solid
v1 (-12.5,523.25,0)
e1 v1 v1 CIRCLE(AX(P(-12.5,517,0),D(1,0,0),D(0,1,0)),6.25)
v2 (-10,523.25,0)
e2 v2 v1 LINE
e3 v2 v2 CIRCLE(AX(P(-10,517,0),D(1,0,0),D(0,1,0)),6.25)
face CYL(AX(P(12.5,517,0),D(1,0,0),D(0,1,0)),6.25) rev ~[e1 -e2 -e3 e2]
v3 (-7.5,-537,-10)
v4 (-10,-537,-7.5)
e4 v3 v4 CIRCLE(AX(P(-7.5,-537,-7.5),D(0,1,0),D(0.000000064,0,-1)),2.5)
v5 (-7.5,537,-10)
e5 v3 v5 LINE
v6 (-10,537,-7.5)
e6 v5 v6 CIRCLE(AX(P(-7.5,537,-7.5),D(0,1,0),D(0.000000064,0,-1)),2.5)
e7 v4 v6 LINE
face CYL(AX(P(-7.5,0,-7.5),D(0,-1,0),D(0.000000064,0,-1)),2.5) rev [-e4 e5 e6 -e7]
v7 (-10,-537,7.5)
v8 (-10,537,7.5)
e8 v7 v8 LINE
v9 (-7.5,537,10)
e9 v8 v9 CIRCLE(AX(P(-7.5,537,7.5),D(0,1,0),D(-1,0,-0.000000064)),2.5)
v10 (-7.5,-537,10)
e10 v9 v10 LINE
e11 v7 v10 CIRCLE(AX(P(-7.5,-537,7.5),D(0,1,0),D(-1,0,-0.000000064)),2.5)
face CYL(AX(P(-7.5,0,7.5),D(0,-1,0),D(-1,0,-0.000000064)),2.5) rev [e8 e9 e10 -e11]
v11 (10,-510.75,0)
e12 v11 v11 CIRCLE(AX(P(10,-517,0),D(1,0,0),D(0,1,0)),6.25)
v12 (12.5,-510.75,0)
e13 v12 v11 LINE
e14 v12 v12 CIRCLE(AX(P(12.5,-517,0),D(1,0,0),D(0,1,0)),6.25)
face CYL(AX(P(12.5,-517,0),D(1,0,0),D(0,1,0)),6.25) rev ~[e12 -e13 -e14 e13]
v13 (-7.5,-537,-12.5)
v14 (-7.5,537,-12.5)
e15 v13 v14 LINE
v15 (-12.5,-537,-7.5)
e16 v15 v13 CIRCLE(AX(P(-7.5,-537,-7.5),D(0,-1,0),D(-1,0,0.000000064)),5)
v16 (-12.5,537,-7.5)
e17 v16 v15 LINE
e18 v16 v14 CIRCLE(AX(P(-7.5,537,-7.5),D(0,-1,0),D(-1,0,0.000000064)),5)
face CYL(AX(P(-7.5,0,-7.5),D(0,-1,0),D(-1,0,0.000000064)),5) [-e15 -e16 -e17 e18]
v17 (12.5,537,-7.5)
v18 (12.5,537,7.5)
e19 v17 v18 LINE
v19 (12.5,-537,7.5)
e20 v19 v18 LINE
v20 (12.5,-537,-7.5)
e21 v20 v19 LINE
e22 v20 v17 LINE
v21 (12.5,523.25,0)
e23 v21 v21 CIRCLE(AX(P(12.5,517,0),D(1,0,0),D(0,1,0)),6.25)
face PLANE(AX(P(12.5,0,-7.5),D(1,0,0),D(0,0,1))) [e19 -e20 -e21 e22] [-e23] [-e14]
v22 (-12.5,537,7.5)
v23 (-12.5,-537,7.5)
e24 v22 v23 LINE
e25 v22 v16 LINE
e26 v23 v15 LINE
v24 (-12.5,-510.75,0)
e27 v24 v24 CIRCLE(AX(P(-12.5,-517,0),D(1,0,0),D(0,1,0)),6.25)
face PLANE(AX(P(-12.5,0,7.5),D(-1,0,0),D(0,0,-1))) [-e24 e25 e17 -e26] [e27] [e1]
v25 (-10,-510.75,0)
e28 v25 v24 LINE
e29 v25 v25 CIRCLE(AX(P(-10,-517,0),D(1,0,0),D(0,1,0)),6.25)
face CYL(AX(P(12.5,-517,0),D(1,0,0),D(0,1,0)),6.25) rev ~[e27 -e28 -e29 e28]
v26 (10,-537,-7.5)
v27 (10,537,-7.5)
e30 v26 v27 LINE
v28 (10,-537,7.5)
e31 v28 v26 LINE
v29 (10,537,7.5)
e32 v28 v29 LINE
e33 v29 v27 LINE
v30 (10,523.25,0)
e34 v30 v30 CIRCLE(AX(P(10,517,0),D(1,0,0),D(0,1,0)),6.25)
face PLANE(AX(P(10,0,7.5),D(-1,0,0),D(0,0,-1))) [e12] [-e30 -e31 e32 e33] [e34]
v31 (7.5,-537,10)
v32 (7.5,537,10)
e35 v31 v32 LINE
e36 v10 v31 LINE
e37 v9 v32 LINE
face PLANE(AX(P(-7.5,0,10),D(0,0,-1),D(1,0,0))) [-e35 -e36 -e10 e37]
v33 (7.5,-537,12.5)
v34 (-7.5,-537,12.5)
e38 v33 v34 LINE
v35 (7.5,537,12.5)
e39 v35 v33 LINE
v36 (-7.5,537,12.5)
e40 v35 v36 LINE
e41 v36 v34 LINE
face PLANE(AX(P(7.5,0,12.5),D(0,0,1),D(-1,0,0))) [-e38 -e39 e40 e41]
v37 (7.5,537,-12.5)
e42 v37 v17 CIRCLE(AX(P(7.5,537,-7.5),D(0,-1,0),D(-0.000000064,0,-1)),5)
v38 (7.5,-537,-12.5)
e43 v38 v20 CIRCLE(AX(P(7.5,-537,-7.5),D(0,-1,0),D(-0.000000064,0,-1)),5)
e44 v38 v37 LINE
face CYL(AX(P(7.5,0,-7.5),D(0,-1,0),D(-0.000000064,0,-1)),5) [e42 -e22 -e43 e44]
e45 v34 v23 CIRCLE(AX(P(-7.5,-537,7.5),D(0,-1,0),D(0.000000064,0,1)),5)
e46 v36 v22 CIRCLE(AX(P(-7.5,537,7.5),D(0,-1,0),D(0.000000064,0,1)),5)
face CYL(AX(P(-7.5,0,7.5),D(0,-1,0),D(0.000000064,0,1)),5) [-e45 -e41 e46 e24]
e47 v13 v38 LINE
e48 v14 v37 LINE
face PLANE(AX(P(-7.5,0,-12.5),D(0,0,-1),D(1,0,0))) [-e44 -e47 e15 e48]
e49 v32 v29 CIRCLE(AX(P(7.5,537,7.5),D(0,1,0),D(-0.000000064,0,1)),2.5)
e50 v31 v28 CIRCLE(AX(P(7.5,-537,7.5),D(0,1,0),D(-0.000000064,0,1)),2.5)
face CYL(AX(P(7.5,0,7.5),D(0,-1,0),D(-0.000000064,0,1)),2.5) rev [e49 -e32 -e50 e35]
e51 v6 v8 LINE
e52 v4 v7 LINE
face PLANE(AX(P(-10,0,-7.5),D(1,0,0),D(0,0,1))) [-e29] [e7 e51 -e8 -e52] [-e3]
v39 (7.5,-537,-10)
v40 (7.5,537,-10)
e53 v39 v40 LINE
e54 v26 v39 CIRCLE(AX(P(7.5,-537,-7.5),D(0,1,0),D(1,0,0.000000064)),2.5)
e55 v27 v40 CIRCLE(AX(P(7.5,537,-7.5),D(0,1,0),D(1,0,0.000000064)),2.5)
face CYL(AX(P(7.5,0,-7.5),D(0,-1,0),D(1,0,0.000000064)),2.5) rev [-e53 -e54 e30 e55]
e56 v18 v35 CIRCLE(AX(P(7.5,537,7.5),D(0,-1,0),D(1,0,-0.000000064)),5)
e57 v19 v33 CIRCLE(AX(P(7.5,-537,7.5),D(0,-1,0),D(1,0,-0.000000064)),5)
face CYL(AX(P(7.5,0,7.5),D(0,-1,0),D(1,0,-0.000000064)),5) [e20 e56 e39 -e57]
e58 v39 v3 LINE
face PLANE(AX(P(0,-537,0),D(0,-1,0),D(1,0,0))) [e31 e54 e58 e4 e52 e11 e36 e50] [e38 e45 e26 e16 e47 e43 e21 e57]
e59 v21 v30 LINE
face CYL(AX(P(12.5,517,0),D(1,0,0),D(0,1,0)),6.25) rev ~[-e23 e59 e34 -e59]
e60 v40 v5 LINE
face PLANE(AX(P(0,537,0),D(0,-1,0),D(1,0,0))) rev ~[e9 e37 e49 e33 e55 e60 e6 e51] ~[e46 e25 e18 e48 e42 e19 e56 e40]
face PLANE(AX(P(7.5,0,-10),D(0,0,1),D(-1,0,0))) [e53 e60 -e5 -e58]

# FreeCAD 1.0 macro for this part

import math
import FreeCAD as App
import Part
import Sketcher
from FreeCAD import Vector

doc = App.newDocument("Part")
body = doc.addObject("PartDesign::Body", "Body")

# Sketch on XZ plane
sketch1 = body.newObject("Sketcher::SketchObject", "Sketch")
sketch1.AttachmentSupport = (doc.getObject("XZ_Plane"), [""])
sketch1.MapMode = "FlatFace"
sketch1.addGeometry(Part.ArcOfCircle(Part.Circle(Vector(7.5, 7.5, 0), Vector(0, 0, 1), 5), math.radians(0), math.radians(90)), False)
sketch1.addGeometry(Part.LineSegment(Vector(7.5, 12.5, 0), Vector(-7.5, 12.5, 0)), False)
sketch1.addGeometry(Part.ArcOfCircle(Part.Circle(Vector(-7.5, 7.5, 0), Vector(0, 0, 1), 5), math.radians(90), math.radians(180)), False)
sketch1.addGeometry(Part.LineSegment(Vector(-12.5, 7.5, 0), Vector(-12.5, -7.5, 0)), False)
sketch1.addGeometry(Part.ArcOfCircle(Part.Circle(Vector(-7.5, -7.5, 0), Vector(0, 0, 1), 5), math.radians(180), math.radians(270)), False)
sketch1.addGeometry(Part.LineSegment(Vector(-7.5, -12.5, 0), Vector(7.5, -12.5, 0)), False)
sketch1.addGeometry(Part.ArcOfCircle(Part.Circle(Vector(7.5, -7.5, 0), Vector(0, 0, 1), 5), math.radians(-90), math.radians(0)), False)
sketch1.addGeometry(Part.LineSegment(Vector(12.5, -7.5, 0), Vector(12.5, 7.5, 0)), False)
sketch1.addGeometry(Part.ArcOfCircle(Part.Circle(Vector(-7.5, 7.5, 0), Vector(0, 0, 1), 2.5), math.radians(90), math.radians(180)), False)
sketch1.addGeometry(Part.LineSegment(Vector(-7.5, 10, 0), Vector(7.5, 10, 0)), False)
sketch1.addGeometry(Part.ArcOfCircle(Part.Circle(Vector(7.5, 7.5, 0), Vector(0, 0, 1), 2.5), math.radians(0), math.radians(90)), False)
sketch1.addGeometry(Part.LineSegment(Vector(10, 7.5, 0), Vector(10, -7.5, 0)), False)
sketch1.addGeometry(Part.ArcOfCircle(Part.Circle(Vector(7.5, -7.5, 0), Vector(0, 0, 1), 2.5), math.radians(-90), math.radians(0)), False)
sketch1.addGeometry(Part.LineSegment(Vector(7.5, -10, 0), Vector(-7.5, -10, 0)), False)
sketch1.addGeometry(Part.ArcOfCircle(Part.Circle(Vector(-7.5, -7.5, 0), Vector(0, 0, 1), 2.5), math.radians(180), math.radians(270)), False)
sketch1.addGeometry(Part.LineSegment(Vector(-10, -7.5, 0), Vector(-10, 7.5, 0)), False)
sketch1.addConstraint(Sketcher.Constraint("Tangent", 0, 2, 1, 1))
sketch1.addConstraint(Sketcher.Constraint("Tangent", 1, 2, 2, 1))
sketch1.addConstraint(Sketcher.Constraint("Tangent", 2, 2, 3, 1))
sketch1.addConstraint(Sketcher.Constraint("Tangent", 3, 2, 4, 1))
sketch1.addConstraint(Sketcher.Constraint("Tangent", 4, 2, 5, 1))
sketch1.addConstraint(Sketcher.Constraint("Tangent", 5, 2, 6, 1))
sketch1.addConstraint(Sketcher.Constraint("Tangent", 6, 2, 7, 1))
sketch1.addConstraint(Sketcher.Constraint("Tangent", 7, 2, 0, 1))
sketch1.addConstraint(Sketcher.Constraint("Tangent", 8, 1, 9, 1))
sketch1.addConstraint(Sketcher.Constraint("Tangent", 9, 2, 10, 2))
sketch1.addConstraint(Sketcher.Constraint("Tangent", 10, 1, 11, 1))
sketch1.addConstraint(Sketcher.Constraint("Tangent", 11, 2, 12, 2))
sketch1.addConstraint(Sketcher.Constraint("Tangent", 12, 1, 13, 1))
sketch1.addConstraint(Sketcher.Constraint("Tangent", 13, 2, 14, 2))
sketch1.addConstraint(Sketcher.Constraint("Tangent", 14, 1, 15, 1))
sketch1.addConstraint(Sketcher.Constraint("Tangent", 15, 2, 8, 2))
sketch1.addConstraint(Sketcher.Constraint("Horizontal", 1))
sketch1.addConstraint(Sketcher.Constraint("Vertical", 3))
sketch1.addConstraint(Sketcher.Constraint("Horizontal", 5))
sketch1.addConstraint(Sketcher.Constraint("Vertical", 7))
sketch1.addConstraint(Sketcher.Constraint("Horizontal", 9))
sketch1.addConstraint(Sketcher.Constraint("Vertical", 11))
sketch1.addConstraint(Sketcher.Constraint("Horizontal", 13))
sketch1.addConstraint(Sketcher.Constraint("Vertical", 15))
sketch1.addConstraint(Sketcher.Constraint("Coincident", 8, 3, 2, 3))
sketch1.addConstraint(Sketcher.Constraint("Coincident", 10, 3, 0, 3))
sketch1.addConstraint(Sketcher.Constraint("Coincident", 12, 3, 6, 3))
sketch1.addConstraint(Sketcher.Constraint("Equal", 0, 2))
sketch1.addConstraint(Sketcher.Constraint("Equal", 2, 4))
sketch1.addConstraint(Sketcher.Constraint("Equal", 4, 6))
sketch1.addConstraint(Sketcher.Constraint("Equal", 12, 14))
sketch1.addConstraint(Sketcher.Constraint("Symmetric", 0, 3, 4, 3, -1, 1))
sketch1.addConstraint(Sketcher.Constraint("Equal", 13, 3))
sketch1.addConstraint(Sketcher.Constraint("Radius", 0, 5.0))
sketch1.addConstraint(Sketcher.Constraint("Radius", 8, 2.5))
sketch1.addConstraint(Sketcher.Constraint("DistanceX", 1, 2, 1, 1, 15.0))
pad1 = body.newObject("PartDesign::Pad", "Pad")
pad1.Profile = sketch1
pad1.Length = 1074
pad1.Midplane = True

# Sketch on YZ plane
sketch2 = body.newObject("Sketcher::SketchObject", "Sketch001")
sketch2.AttachmentSupport = (doc.getObject("YZ_Plane"), [""])
sketch2.MapMode = "FlatFace"
sketch2.AttachmentOffset = App.Placement(Vector(0, 0, 12.5), App.Rotation())
sketch2.addGeometry(Part.Circle(Vector(-517, 0, 0), Vector(0, 0, 1), 6), False)
sketch2.addGeometry(Part.Circle(Vector(517, 0, 0), Vector(0, 0, 1), 6), False)
sketch2.addConstraint(Sketcher.Constraint("Equal", 0, 1))
sketch2.addConstraint(Sketcher.Constraint("Symmetric", 0, 3, 1, 3, -1, 1))
sketch2.addConstraint(Sketcher.Constraint("PointOnObject", 0, 3, -1))
sketch2.addConstraint(Sketcher.Constraint("Diameter", 0, 12.5))
sketch2.addConstraint(Sketcher.Constraint("DistanceX", 0, 3, -1, 1, 517.0))
pocket1 = body.newObject("PartDesign::Pocket", "Pocket")
pocket1.Profile = sketch2
pocket1.Type = "ThroughAll"

doc.recompute()
